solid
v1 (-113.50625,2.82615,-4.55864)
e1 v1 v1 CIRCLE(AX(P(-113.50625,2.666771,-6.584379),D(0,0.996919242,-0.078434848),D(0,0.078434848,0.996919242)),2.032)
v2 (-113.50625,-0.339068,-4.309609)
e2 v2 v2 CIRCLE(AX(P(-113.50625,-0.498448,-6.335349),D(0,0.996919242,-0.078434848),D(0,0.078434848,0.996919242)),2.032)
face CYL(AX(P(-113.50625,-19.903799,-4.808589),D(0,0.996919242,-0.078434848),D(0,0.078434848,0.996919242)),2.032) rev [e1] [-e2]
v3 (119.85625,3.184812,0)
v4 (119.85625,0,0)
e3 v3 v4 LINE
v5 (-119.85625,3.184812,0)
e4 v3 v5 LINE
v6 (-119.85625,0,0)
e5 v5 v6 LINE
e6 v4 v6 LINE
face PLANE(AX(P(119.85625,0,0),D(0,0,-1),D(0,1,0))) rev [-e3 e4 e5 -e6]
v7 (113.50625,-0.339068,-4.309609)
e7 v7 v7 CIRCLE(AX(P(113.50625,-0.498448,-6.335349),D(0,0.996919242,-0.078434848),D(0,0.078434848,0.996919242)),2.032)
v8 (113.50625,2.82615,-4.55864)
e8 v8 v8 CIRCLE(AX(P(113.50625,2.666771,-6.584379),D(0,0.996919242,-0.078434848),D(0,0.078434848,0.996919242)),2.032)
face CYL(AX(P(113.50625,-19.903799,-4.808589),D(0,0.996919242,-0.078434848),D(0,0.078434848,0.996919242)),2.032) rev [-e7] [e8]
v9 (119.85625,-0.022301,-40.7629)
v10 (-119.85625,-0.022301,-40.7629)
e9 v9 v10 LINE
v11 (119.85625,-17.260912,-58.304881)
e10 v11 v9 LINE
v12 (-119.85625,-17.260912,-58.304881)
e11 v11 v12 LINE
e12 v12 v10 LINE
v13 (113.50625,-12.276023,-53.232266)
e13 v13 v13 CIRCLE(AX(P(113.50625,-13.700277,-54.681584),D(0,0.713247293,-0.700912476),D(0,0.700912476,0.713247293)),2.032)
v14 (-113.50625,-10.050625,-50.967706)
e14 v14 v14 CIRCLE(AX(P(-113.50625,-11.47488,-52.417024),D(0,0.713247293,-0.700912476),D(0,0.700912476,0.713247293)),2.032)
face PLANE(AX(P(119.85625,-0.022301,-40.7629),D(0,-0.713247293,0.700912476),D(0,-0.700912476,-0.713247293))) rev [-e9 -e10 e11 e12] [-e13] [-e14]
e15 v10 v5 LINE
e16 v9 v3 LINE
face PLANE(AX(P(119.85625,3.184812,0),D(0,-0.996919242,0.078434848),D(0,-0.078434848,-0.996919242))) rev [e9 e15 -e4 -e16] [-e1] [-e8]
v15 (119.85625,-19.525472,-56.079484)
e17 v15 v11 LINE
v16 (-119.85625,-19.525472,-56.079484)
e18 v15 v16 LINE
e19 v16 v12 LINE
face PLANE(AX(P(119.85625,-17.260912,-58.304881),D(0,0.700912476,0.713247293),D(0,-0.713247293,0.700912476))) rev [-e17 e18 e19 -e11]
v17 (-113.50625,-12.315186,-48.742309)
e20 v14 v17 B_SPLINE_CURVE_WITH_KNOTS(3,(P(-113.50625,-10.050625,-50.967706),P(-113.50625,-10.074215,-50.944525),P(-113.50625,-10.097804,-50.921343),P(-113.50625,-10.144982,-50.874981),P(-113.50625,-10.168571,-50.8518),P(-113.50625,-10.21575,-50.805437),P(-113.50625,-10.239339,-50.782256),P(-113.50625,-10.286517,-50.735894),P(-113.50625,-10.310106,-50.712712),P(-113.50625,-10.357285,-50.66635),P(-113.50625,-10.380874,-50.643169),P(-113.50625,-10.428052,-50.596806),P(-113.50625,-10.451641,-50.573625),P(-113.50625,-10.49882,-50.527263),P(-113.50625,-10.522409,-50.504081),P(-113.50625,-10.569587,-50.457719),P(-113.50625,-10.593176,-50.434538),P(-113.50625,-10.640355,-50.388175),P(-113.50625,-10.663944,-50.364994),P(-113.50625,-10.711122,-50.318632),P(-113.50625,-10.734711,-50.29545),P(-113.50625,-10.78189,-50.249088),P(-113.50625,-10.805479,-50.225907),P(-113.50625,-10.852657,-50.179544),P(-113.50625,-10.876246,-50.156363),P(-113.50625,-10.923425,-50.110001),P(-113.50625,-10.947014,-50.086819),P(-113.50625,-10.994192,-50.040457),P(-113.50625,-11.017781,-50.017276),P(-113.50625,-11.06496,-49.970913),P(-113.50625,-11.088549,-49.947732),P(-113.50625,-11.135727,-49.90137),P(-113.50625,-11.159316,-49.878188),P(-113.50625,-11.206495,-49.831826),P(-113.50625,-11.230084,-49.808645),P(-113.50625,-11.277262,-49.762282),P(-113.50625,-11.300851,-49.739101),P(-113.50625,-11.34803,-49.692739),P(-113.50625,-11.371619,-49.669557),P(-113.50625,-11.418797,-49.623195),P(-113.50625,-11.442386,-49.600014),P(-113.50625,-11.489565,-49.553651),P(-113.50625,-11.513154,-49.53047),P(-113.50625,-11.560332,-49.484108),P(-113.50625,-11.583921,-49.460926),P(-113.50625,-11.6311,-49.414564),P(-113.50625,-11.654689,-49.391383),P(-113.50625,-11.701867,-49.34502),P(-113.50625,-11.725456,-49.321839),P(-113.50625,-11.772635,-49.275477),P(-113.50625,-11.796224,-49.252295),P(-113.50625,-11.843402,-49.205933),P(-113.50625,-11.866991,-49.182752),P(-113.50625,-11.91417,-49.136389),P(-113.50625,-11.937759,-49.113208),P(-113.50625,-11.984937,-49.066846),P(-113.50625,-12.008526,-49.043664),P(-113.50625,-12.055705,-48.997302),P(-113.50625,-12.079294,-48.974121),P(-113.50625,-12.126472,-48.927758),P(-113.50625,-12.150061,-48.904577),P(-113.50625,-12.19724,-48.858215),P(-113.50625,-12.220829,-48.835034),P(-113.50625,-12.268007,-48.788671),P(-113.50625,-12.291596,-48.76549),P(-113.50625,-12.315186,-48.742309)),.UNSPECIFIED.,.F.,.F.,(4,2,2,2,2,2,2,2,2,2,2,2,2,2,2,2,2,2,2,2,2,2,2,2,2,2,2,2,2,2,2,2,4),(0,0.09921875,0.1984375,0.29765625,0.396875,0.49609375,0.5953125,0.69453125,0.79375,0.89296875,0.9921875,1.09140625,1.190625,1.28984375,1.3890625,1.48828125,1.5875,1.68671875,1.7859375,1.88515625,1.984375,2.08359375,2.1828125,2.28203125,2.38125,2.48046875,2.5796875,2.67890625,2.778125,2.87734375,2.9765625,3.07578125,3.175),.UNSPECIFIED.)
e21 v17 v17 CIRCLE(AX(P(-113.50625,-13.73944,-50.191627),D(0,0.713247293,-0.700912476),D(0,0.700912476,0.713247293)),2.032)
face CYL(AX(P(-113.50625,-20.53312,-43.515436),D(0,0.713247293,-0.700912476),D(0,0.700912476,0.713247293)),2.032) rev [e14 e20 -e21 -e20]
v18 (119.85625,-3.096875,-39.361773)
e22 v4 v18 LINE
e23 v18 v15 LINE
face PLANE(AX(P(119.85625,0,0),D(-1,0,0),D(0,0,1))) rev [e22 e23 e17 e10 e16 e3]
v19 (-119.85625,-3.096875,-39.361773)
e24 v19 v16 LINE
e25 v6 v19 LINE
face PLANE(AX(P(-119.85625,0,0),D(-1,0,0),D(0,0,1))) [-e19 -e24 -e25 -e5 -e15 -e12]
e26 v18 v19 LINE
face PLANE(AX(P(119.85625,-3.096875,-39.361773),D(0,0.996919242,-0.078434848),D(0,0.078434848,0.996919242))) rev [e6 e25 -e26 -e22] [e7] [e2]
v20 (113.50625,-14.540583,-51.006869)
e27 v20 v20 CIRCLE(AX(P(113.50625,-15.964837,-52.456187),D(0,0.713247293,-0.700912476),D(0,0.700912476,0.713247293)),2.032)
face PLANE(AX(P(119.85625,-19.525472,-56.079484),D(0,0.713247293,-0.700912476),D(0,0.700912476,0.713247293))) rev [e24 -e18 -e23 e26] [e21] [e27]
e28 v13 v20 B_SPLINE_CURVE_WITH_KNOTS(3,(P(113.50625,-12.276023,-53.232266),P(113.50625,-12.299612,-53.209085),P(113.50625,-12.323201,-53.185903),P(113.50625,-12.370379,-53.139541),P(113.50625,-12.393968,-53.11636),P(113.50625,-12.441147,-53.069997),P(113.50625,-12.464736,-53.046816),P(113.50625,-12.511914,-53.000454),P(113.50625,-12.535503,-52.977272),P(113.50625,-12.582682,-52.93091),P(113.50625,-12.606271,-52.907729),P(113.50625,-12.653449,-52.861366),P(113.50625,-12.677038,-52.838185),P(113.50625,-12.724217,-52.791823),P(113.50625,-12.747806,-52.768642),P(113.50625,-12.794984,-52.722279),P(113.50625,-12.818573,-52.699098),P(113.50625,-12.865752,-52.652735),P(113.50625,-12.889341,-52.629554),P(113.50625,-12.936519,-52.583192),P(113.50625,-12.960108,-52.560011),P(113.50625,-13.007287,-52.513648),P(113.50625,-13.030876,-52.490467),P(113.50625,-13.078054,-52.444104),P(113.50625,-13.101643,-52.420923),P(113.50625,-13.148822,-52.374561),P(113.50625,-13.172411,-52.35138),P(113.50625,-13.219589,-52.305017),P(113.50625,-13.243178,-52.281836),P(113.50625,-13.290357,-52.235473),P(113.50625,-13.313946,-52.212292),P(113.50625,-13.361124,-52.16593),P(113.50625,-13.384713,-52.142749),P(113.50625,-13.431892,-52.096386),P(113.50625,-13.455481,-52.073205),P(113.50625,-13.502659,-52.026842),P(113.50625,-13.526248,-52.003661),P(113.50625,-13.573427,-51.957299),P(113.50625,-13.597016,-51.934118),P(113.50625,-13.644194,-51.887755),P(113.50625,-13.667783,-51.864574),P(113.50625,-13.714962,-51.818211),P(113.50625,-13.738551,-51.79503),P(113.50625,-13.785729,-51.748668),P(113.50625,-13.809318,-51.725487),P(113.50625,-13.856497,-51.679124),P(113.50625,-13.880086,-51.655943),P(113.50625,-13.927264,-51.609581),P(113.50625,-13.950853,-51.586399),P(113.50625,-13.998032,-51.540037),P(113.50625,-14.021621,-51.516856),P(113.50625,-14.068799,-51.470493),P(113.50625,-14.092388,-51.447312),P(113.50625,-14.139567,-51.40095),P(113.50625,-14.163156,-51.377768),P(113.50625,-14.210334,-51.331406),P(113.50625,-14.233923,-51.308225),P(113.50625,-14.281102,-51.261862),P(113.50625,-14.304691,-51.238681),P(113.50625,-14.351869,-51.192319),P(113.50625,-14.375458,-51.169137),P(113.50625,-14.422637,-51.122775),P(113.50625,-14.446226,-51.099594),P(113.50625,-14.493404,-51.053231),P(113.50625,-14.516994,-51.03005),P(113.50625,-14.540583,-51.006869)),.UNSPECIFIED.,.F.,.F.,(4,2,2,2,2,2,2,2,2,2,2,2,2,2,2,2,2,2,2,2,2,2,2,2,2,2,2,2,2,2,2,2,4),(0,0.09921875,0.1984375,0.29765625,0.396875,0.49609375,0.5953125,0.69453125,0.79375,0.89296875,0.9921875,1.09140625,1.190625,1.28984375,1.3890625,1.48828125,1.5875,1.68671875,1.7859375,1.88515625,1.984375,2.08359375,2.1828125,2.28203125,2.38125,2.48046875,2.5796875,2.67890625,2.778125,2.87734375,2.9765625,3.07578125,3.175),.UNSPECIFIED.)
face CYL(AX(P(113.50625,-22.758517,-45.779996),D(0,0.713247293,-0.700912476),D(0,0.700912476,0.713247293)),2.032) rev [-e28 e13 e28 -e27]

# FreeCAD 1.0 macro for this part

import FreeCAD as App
import Part
import Sketcher
Q = App.Units.Quantity

doc = App.newDocument("Part")
body = doc.addObject("PartDesign::Body", "Body")

sketch1 = body.newObject("Sketcher::SketchObject", "Sketch")
sketch1.AttachmentSupport = (doc.getObject("YZ_Plane"), [""])
sketch1.MapMode = "FlatFace"
sketch1.addGeometry(Part.LineSegment(App.Vector(3.2, 0, 0), App.Vector(0, 0, 0)), False)
sketch1.addGeometry(Part.LineSegment(App.Vector(0, 0, 0), App.Vector(-3.1, -39.4, 0)), False)
sketch1.addGeometry(Part.LineSegment(App.Vector(-3.1, -39.4, 0), App.Vector(-19.5, -56.1, 0)), False)
sketch1.addGeometry(Part.LineSegment(App.Vector(-19.5, -56.1, 0), App.Vector(-17.3, -58.3, 0)), False)
sketch1.addGeometry(Part.LineSegment(App.Vector(-17.3, -58.3, 0), App.Vector(0, -40.8, 0)), False)
sketch1.addGeometry(Part.LineSegment(App.Vector(0, -40.8, 0), App.Vector(3.2, 0, 0)), False)
sketch1.addConstraint(Sketcher.Constraint("Coincident", 0, 2, 1, 1))
sketch1.addConstraint(Sketcher.Constraint("Coincident", 1, 2, 2, 1))
sketch1.addConstraint(Sketcher.Constraint("Coincident", 2, 2, 3, 1))
sketch1.addConstraint(Sketcher.Constraint("Coincident", 3, 2, 4, 1))
sketch1.addConstraint(Sketcher.Constraint("Coincident", 4, 2, 5, 1))
sketch1.addConstraint(Sketcher.Constraint("Coincident", 5, 2, 0, 1))
sketch1.addConstraint(Sketcher.Constraint("Horizontal", 0))
sketch1.addConstraint(Sketcher.Constraint("Coincident", 0, 2, -1, 1))
sketch1.addConstraint(Sketcher.Constraint("Perpendicular", 2, 3))
sketch1.addConstraint(Sketcher.Constraint("Perpendicular", 3, 4))
sketch1.addConstraint(Sketcher.Constraint("Parallel", 1, 5))
sketch1.addConstraint(Sketcher.Constraint("Distance", 3, Q("0.125 in")))
sketch1.addConstraint(Sketcher.Constraint("DistanceX", 0, 2, 0, 1, Q("3.184812 mm")))
sketch1.addConstraint(Sketcher.Constraint("DistanceX", 4, 2, -1, 1, Q("0.022301 mm")))
sketch1.addConstraint(Sketcher.Constraint("DistanceY", 4, 2, -1, 1, Q("40.7629 mm")))
sketch1.addConstraint(Sketcher.Constraint("Distance", 1, Q("39.483411 mm")))
sketch1.addConstraint(Sketcher.Constraint("Distance", 2, Q("23.438871 mm")))
pad1 = body.newObject("PartDesign::Pad", "Pad")
pad1.Profile = sketch1
pad1.Length = Q("9.4375 in")
pad1.Midplane = True

sketch2 = body.newObject("Sketcher::SketchObject", "Sketch001")
sketch2.Placement = App.Placement(App.Vector(0, 3.165219, -0.249031), App.Rotation(App.Vector(1, 0, 0), App.Vector(0, -0.078434848, -0.996919242), App.Vector(0, 0.996919242, -0.078434848), "ZXY"))
sketch2.addGeometry(Part.Circle(App.Vector(113.5, 6.4, 0), App.Vector(0, 0, 1), 2), False)
sketch2.addGeometry(Part.Circle(App.Vector(-113.5, 6.4, 0), App.Vector(0, 0, 1), 2), False)
sketch2.addConstraint(Sketcher.Constraint("Equal", 0, 1))
sketch2.addConstraint(Sketcher.Constraint("Symmetric", 0, 3, 1, 3, -2))
sketch2.addConstraint(Sketcher.Constraint("Diameter", 0, Q("0.16 in")))
sketch2.addConstraint(Sketcher.Constraint("DistanceX", -1, 1, 0, 3, Q("4.46875 in")))
sketch2.addConstraint(Sketcher.Constraint("DistanceY", -1, 1, 0, 3, Q("6.354927 mm")))
pocket1 = body.newObject("PartDesign::Pocket", "Pocket")
pocket1.Profile = sketch2
pocket1.Type = "ThroughAll"

sketch3 = body.newObject("Sketcher::SketchObject", "Sketch002")
sketch3.Placement = App.Placement(App.Vector(0, 20.367004, -20.01478), App.Rotation(App.Vector(1, 0, 0), App.Vector(0, -0.700912476, -0.713247293), App.Vector(0, 0.713247293, -0.700912476), "ZXY"))
sketch3.addGeometry(Part.Circle(App.Vector(-113.5, 45.4, 0), App.Vector(0, 0, 1), 2), False)
sketch3.addGeometry(Part.Circle(App.Vector(113.5, 48.6, 0), App.Vector(0, 0, 1), 2), False)
sketch3.addConstraint(Sketcher.Constraint("Equal", 0, 1))
sketch3.addConstraint(Sketcher.Constraint("Diameter", 0, Q("0.16 in")))
sketch3.addConstraint(Sketcher.Constraint("DistanceX", 0, 3, -1, 1, Q("4.46875 in")))
sketch3.addConstraint(Sketcher.Constraint("DistanceX", -1, 1, 1, 3, Q("4.46875 in")))
sketch3.addConstraint(Sketcher.Constraint("DistanceY", 0, 3, 1, 3, Q("0.125 in")))
sketch3.addConstraint(Sketcher.Constraint("DistanceY", -1, 1, 0, 3, Q("45.429187 mm")))
pocket2 = body.newObject("PartDesign::Pocket", "Pocket001")
pocket2.Profile = sketch3
pocket2.Length = Q("0.5 in")

doc.recompute()
